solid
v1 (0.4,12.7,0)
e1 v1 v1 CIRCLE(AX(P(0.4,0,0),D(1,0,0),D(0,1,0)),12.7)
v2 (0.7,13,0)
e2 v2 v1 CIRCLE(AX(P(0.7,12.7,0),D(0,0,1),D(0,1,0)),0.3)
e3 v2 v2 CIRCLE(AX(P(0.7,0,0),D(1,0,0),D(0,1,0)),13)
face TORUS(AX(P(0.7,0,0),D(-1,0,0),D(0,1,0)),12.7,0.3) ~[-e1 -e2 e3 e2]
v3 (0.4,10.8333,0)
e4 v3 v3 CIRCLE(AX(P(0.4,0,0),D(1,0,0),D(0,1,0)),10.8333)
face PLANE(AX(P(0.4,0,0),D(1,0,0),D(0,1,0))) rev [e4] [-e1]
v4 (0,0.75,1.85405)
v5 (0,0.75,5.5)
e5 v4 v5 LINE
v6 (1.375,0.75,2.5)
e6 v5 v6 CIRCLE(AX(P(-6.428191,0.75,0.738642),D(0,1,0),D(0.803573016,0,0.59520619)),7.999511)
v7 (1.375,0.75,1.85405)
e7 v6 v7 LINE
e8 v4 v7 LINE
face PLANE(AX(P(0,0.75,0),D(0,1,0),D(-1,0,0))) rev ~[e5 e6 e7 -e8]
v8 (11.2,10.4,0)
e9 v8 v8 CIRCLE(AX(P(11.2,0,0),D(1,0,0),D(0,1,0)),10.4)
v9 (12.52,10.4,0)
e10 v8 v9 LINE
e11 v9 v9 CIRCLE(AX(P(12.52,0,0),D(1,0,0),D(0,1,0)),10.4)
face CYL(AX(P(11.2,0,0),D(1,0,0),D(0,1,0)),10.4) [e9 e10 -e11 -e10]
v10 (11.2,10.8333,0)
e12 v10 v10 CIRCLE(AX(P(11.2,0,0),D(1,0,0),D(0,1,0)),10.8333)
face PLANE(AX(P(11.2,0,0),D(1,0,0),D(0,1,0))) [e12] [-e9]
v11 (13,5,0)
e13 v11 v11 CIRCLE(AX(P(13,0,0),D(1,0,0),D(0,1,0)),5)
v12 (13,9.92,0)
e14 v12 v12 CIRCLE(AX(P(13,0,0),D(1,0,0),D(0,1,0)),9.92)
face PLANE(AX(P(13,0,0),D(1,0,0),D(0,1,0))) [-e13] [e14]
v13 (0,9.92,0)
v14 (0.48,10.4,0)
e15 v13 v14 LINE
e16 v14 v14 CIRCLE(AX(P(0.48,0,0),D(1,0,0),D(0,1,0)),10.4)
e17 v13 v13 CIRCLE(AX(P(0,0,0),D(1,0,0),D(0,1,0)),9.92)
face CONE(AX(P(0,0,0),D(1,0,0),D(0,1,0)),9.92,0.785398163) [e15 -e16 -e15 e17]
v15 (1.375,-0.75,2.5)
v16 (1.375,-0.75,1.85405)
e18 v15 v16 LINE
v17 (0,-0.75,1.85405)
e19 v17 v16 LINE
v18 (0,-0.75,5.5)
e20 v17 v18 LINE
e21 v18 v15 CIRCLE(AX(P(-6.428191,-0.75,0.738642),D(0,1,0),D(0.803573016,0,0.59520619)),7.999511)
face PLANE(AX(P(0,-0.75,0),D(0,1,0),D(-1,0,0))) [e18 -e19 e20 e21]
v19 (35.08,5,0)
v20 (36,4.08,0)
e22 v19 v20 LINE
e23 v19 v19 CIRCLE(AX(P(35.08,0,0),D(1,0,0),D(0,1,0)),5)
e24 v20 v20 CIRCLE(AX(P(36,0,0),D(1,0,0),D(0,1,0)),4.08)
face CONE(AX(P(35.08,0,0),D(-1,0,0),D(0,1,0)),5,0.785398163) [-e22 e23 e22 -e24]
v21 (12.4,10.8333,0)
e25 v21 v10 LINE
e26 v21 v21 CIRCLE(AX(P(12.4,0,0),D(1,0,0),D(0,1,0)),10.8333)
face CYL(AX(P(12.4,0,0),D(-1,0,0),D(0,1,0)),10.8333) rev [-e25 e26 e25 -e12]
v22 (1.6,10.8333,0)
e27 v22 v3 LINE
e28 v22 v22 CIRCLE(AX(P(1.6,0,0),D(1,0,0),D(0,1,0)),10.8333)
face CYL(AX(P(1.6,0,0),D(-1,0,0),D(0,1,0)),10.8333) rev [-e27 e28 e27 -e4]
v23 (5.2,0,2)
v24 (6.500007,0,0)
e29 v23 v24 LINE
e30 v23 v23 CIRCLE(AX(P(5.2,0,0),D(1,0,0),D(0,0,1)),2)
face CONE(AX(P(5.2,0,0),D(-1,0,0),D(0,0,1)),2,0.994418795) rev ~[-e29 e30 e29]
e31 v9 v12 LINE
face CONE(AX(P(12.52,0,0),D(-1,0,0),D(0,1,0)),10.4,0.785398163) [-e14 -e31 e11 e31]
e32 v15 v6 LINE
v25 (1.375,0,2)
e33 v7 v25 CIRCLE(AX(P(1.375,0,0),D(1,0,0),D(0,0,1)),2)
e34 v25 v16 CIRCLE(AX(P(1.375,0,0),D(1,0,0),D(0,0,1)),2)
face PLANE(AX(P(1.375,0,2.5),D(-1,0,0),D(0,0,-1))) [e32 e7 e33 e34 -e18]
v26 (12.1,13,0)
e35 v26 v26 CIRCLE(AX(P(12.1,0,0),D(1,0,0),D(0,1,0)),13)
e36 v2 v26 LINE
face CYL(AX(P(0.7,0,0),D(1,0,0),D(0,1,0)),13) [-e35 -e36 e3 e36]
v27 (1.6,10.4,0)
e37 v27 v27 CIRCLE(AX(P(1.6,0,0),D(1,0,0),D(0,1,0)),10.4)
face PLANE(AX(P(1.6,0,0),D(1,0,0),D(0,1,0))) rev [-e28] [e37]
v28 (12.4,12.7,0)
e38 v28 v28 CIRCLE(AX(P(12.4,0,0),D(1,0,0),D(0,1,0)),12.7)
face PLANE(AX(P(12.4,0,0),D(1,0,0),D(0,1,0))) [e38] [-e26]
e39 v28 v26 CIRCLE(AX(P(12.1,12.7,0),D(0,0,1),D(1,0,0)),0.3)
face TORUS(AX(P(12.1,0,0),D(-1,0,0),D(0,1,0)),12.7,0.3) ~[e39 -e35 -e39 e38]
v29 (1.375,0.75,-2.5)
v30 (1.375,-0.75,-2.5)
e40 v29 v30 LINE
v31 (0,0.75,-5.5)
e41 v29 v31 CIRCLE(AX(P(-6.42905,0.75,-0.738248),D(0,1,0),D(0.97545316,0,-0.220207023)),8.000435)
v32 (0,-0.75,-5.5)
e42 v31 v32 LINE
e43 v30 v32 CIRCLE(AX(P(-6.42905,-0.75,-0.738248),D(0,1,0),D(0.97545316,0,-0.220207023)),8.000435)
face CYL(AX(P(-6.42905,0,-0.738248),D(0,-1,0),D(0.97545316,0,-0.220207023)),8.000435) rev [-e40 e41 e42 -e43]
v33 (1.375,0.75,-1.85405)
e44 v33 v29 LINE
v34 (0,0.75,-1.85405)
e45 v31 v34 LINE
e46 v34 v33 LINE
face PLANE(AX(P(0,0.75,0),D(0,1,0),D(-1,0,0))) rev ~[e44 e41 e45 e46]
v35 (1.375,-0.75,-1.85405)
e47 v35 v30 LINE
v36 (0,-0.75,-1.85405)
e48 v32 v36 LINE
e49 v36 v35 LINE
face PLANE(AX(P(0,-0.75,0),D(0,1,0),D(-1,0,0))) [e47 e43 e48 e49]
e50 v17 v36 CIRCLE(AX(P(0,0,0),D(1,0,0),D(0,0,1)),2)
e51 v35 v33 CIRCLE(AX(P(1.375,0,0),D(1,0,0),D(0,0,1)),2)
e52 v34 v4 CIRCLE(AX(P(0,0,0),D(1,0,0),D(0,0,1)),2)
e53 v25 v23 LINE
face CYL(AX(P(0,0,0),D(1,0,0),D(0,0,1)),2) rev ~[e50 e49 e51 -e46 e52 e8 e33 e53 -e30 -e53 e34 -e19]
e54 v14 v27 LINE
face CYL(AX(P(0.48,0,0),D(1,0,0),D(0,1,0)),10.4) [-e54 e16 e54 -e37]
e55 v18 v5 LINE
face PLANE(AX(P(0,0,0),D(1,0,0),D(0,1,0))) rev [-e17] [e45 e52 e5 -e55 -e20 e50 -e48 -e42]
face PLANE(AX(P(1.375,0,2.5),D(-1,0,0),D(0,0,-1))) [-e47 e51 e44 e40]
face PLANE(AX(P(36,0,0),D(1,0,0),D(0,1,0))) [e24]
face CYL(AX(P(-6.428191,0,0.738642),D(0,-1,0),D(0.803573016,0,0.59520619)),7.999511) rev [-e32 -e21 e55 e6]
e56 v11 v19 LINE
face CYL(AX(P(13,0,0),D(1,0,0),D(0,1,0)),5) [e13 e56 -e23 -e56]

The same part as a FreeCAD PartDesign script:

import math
import FreeCAD as App
import Part
import Sketcher

V = App.Vector

doc = App.newDocument("Part")
body = doc.addObject("PartDesign::Body", "Body")

# Sketch on XY plane
sketch1 = body.newObject("Sketcher::SketchObject", "Sketch")
sketch1.AttachmentSupport = (doc.getObject("XY_Plane"), [""])
sketch1.MapMode = "FlatFace"
sketch1.addGeometry([
    Part.LineSegment(V(0, 0, 0), V(36, 0, 0)),  # 0
    Part.LineSegment(V(36, 0, 0), V(36, 4.08, 0)),  # 1
    Part.LineSegment(V(36, 4.08, 0), V(35.08, 5, 0)),  # 2
    Part.LineSegment(V(35.08, 5, 0), V(13, 5, 0)),  # 3
    Part.LineSegment(V(13, 5, 0), V(13, 9.92, 0)),  # 4
    Part.LineSegment(V(13, 9.92, 0), V(12.52, 10.4, 0)),  # 5
    Part.LineSegment(V(12.52, 10.4, 0), V(11.2, 10.4, 0)),  # 6
    Part.LineSegment(V(11.2, 10.4, 0), V(11.2, 10.8333, 0)),  # 7
    Part.LineSegment(V(11.2, 10.8333, 0), V(12.4, 10.8333, 0)),  # 8
    Part.LineSegment(V(12.4, 10.8333, 0), V(12.4, 12.7, 0)),  # 9
    Part.ArcOfCircle(Part.Circle(V(12.1, 12.7, 0), V(0, 0, 1), 0.3), math.radians(0), math.radians(90)),  # 10
    Part.LineSegment(V(12.1, 13, 0), V(0.7, 13, 0)),  # 11
    Part.ArcOfCircle(Part.Circle(V(0.7, 12.7, 0), V(0, 0, 1), 0.3), math.radians(90), math.radians(180)),  # 12
    Part.LineSegment(V(0.4, 12.7, 0), V(0.4, 10.8333, 0)),  # 13
    Part.LineSegment(V(0.4, 10.8333, 0), V(1.6, 10.8333, 0)),  # 14
    Part.LineSegment(V(1.6, 10.8333, 0), V(1.6, 10.4, 0)),  # 15
    Part.LineSegment(V(1.6, 10.4, 0), V(0.48, 10.4, 0)),  # 16
    Part.LineSegment(V(0.48, 10.4, 0), V(0, 9.92, 0)),  # 17
    Part.LineSegment(V(0, 9.92, 0), V(0, 0, 0)),  # 18
], False)
sketch1.addConstraint([
    Sketcher.Constraint("Coincident", 0, 2, 1, 1),
    Sketcher.Constraint("Coincident", 1, 2, 2, 1),
    Sketcher.Constraint("Coincident", 2, 2, 3, 1),
    Sketcher.Constraint("Coincident", 3, 2, 4, 1),
    Sketcher.Constraint("Coincident", 4, 2, 5, 1),
    Sketcher.Constraint("Coincident", 5, 2, 6, 1),
    Sketcher.Constraint("Coincident", 6, 2, 7, 1),
    Sketcher.Constraint("Coincident", 7, 2, 8, 1),
    Sketcher.Constraint("Coincident", 8, 2, 9, 1),
    Sketcher.Constraint("Tangent", 9, 2, 10, 1),
    Sketcher.Constraint("Tangent", 10, 2, 11, 1),
    Sketcher.Constraint("Tangent", 11, 2, 12, 1),
    Sketcher.Constraint("Tangent", 12, 2, 13, 1),
    Sketcher.Constraint("Coincident", 13, 2, 14, 1),
    Sketcher.Constraint("Coincident", 14, 2, 15, 1),
    Sketcher.Constraint("Coincident", 15, 2, 16, 1),
    Sketcher.Constraint("Coincident", 16, 2, 17, 1),
    Sketcher.Constraint("Coincident", 17, 2, 18, 1),
    Sketcher.Constraint("Coincident", 18, 2, 0, 1),
    Sketcher.Constraint("Horizontal", 0),
    Sketcher.Constraint("Vertical", 1),
    Sketcher.Constraint("Horizontal", 3),
    Sketcher.Constraint("Vertical", 4),
    Sketcher.Constraint("Horizontal", 6),
    Sketcher.Constraint("Vertical", 7),
    Sketcher.Constraint("Horizontal", 8),
    Sketcher.Constraint("Vertical", 9),
    Sketcher.Constraint("Horizontal", 11),
    Sketcher.Constraint("Vertical", 13),
    Sketcher.Constraint("Horizontal", 14),
    Sketcher.Constraint("Vertical", 15),
    Sketcher.Constraint("Horizontal", 16),
    Sketcher.Constraint("Vertical", 18),
    Sketcher.Constraint("Coincident", 18, 2, -1, 1),
    Sketcher.Constraint("Equal", 10, 12),
    Sketcher.Constraint("Parallel", 2, 5),
    Sketcher.Constraint("Perpendicular", 5, 17),
    Sketcher.Constraint("Horizontal", 8, 2, 13, 2),
    Sketcher.Constraint("Horizontal", 6, 2, 15, 2),
    Sketcher.Constraint("Horizontal", 4, 2, 17, 2),
    Sketcher.Constraint("Equal", 8, 14),
    Sketcher.Constraint("Equal", 5, 17),
    Sketcher.Constraint("Radius", 10, 0.3),
    Sketcher.Constraint("DistanceX", 0, 1, 0, 2, 36.0),
    Sketcher.Constraint("DistanceX", 8, 1, 8, 2, 1.2),
    Sketcher.Constraint("DistanceX", 11, 2, 11, 1, 11.4),
    Sketcher.Constraint("DistanceY", -1, 1, 2, 2, 5.0),
    Sketcher.Constraint("DistanceX", -1, 1, 3, 2, 13.0),
    Sketcher.Constraint("DistanceY", -1, 1, 10, 2, 13.0),
    Sketcher.Constraint("DistanceX", 3, 2, 3, 1, 22.08),
    Sketcher.Constraint("DistanceX", 6, 2, 6, 1, 1.32),
    Sketcher.Constraint("DistanceX", 16, 2, 16, 1, 1.12),
    Sketcher.Constraint("DistanceY", 4, 1, 4, 2, 4.92),
    Sketcher.Constraint("DistanceY", 7, 1, 7, 2, 0.4333),
])
revolution = body.newObject("PartDesign::Revolution", "Revolution")
revolution.Profile = sketch1
revolution.ReferenceAxis = (sketch1, ["H_Axis"])
revolution.Angle = 360

# Sketch on YZ plane
sketch2 = body.newObject("Sketcher::SketchObject", "Sketch001")
sketch2.AttachmentSupport = (doc.getObject("YZ_Plane"), [""])
sketch2.MapMode = "FlatFace"
sketch2.addGeometry(Part.Circle(V(0, 0, 0), V(0, 0, 1), 2), False)
sketch2.addConstraint([
    Sketcher.Constraint("Coincident", 0, 3, -1, 1),
    Sketcher.Constraint("Diameter", 0, 4.0),
])
doc.recompute()
hole = body.newObject("PartDesign::Hole", "Hole")
hole.Profile = sketch2
hole.ThreadType = "None"
hole.Diameter = 4
hole.DepthType = "Dimension"
hole.Depth = 5.2
hole.DrillPoint = "Angled"
hole.DrillPointAngle = 113.952
hole.Reversed = True

# Sketch on XZ plane
sketch3 = body.newObject("Sketcher::SketchObject", "Sketch002")
sketch3.AttachmentSupport = (doc.getObject("XZ_Plane"), [""])
sketch3.MapMode = "FlatFace"
sketch3.addGeometry([
    Part.LineSegment(V(0, -5.5, 0), V(0, 5.5, 0)),
    Part.ArcOfCircle(Part.Circle(V(-6.4286, 0.7384, 0), V(0, 0, 1), 7.999983), math.radians(12.72084), math.radians(36.52698)),
    Part.LineSegment(V(1.375, 2.5, 0), V(1.375, -2.5, 0)),
    Part.ArcOfCircle(Part.Circle(V(-6.4286, -0.7384, 0), V(0, 0, 1), 7.999963), math.radians(-36.52698), math.radians(-12.72084)),
], False)
sketch3.addConstraint([
    Sketcher.Constraint("Coincident", 0, 2, 1, 2),
    Sketcher.Constraint("Coincident", 1, 1, 2, 1),
    Sketcher.Constraint("Coincident", 2, 2, 3, 2),
    Sketcher.Constraint("Coincident", 3, 1, 0, 1),
    Sketcher.Constraint("Vertical", 0),
    Sketcher.Constraint("Vertical", 2),
    Sketcher.Constraint("Equal", 1, 3),
    Sketcher.Constraint("Symmetric", 0, 2, 3, 1, -1, 1),
    Sketcher.Constraint("Vertical", 1, 3, 3, 3),
    Sketcher.Constraint("Radius", 1, 8.0),
    Sketcher.Constraint("DistanceY", 0, 1, 0, 2, 11.0),
    Sketcher.Constraint("DistanceY", 2, 2, 2, 1, 5.0),
    Sketcher.Constraint("DistanceX", -1, 1, 1, 1, 1.375),
])
pocket1 = body.newObject("PartDesign::Pocket", "Pocket")
pocket1.Profile = sketch3
pocket1.Length = 1.5
pocket1.Midplane = True

doc.recompute()
